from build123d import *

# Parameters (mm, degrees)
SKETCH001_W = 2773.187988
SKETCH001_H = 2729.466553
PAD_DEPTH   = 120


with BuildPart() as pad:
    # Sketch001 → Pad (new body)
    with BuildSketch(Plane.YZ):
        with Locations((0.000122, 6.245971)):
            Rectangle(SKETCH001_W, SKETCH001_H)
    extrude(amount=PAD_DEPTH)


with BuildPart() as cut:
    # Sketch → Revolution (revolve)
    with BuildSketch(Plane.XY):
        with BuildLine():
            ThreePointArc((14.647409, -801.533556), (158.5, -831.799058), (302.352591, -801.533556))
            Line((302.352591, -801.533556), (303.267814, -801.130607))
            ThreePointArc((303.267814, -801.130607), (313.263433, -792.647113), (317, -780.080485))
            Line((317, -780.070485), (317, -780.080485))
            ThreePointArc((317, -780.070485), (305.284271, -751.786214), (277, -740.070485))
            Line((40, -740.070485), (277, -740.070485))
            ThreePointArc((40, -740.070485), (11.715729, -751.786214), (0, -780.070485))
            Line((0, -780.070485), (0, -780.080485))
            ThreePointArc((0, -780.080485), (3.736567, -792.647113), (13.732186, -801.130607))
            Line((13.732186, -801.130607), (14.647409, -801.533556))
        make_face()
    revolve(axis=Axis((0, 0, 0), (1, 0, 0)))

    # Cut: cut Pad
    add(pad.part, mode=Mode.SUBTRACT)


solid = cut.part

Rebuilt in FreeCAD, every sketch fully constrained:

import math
import FreeCAD as App
import Part
import Sketcher

V = App.Vector


def add_polygon(sketch, points):
    """Adds a closed chain of lines whose ends are joined by coincident constraints."""
    first, n = sketch.GeometryCount, len(points)
    for a, b in zip(points, points[1:] + points[:1]):
        sketch.addGeometry(Part.LineSegment(App.Vector(*a, 0), App.Vector(*b, 0)), False)
    for i in range(n):
        sketch.addConstraint(Sketcher.Constraint("Coincident", first + i, 2, first + (i + 1) % n, 1))

doc = App.newDocument("Part")
body = doc.addObject("PartDesign::Body", "Body")

sketch1 = doc.addObject("Sketcher::SketchObject", "Sketch")
body.addObject(sketch1)
sketch1.AttachmentSupport = (doc.YZ_Plane, [""])
sketch1.MapMode = "FlatFace"
add_polygon(sketch1, [(-1387, 1371), (-1387, -1358), (1387, -1358), (1387, 1371)])
sketch1.addConstraint([
    Sketcher.Constraint("Vertical", 0),
    Sketcher.Constraint("Horizontal", 1),
    Sketcher.Constraint("Vertical", 2),
    Sketcher.Constraint("Horizontal", 3),
    Sketcher.Constraint("DistanceX", 1, 1, 1, 2, 2773.187988),
    Sketcher.Constraint("DistanceY", 0, 2, 0, 1, 2729.466553),
    Sketcher.Constraint("DistanceX", 0, 2, -1, 1, 1386.593872),
    Sketcher.Constraint("DistanceY", 0, 2, -1, 1, 1358.487306),
])
pad1 = doc.addObject("PartDesign::Pad", "Pad")
body.addObject(pad1)
pad1.Profile = sketch1
pad1.Length = 120
body2 = doc.addObject("PartDesign::Body", "Body001")

sketch2 = doc.addObject("Sketcher::SketchObject", "Sketch001")
body2.addObject(sketch2)
sketch2.AttachmentSupport = (doc.getObject("XY_Plane001"), [""])
sketch2.MapMode = "FlatFace"
sketch2.addGeometry([
    Part.ArcOfCircle(Part.Circle(V(158.5, -474.799, 0), V(0, 0, 1), 357), math.radians(-114), math.radians(-66)),
    Part.LineSegment(V(302.353, -801.534, 0), V(303.268, -801.131, 0)),
    Part.ArcOfCircle(Part.Circle(V(294, -780.08, 0), V(0, 0, 1), 23), math.radians(-66), math.radians(0)),
    Part.LineSegment(V(317, -780.08, 0), V(317, -780.07, 0)),
    Part.ArcOfCircle(Part.Circle(V(277, -780.07, 0), V(0, 0, 1), 40), math.radians(0), math.radians(90)),
    Part.LineSegment(V(277, -740.07, 0), V(40, -740.07, 0)),
    Part.ArcOfCircle(Part.Circle(V(40, -780.07, 0), V(0, 0, 1), 40), math.radians(90), math.radians(180)),
    Part.LineSegment(V(0, -780.07, 0), V(0, -780.08, 0)),
    Part.ArcOfCircle(Part.Circle(V(23, -780.08, 0), V(0, 0, 1), 23), math.radians(-180), math.radians(-114)),
    Part.LineSegment(V(13.732, -801.131, 0), V(14.647, -801.534, 0)),
], False)
sketch2.addConstraint([
    Sketcher.Constraint("Tangent", 0, 2, 1, 1),
    Sketcher.Constraint("Tangent", 1, 2, 2, 1),
    Sketcher.Constraint("Tangent", 2, 2, 3, 1),
    Sketcher.Constraint("Coincident", 3, 2, 4, 1),
    Sketcher.Constraint("Tangent", 4, 2, 5, 1),
    Sketcher.Constraint("Tangent", 5, 2, 6, 1),
    Sketcher.Constraint("Tangent", 6, 2, 7, 1),
    Sketcher.Constraint("Coincident", 7, 2, 8, 1),
    Sketcher.Constraint("Tangent", 8, 2, 9, 1),
    Sketcher.Constraint("Tangent", 9, 2, 0, 1),
    Sketcher.Constraint("Horizontal", 5),
    Sketcher.Constraint("Equal", 4, 6),
    Sketcher.Constraint("Equal", 2, 8),
    Sketcher.Constraint("PointOnObject", 6, 2, -2),
    Sketcher.Constraint("Horizontal", 2, 3, 8, 3),
    Sketcher.Constraint("Horizontal", 8, 3, 2, 2),
    Sketcher.Constraint("Horizontal", 6, 3, 3, 2),
    Sketcher.Constraint("Horizontal", 3, 2, 6, 2),
    Sketcher.Constraint("Horizontal", 2, 2, 7, 2),
    Sketcher.Constraint("Horizontal", 1, 2, 8, 2),
    Sketcher.Constraint("Radius", 0, 357.000002),
    Sketcher.Constraint("Radius", 2, 23.000002),
    Sketcher.Constraint("Radius", 4, 40.000001),
    Sketcher.Constraint("DistanceX", 5, 2, 5, 1, 237.0),
    Sketcher.Constraint("Distance", 1, 1.000001),
    Sketcher.Constraint("DistanceY", 3, 1, 3, 2, 0.01),
    Sketcher.Constraint("DistanceY", 0, 3, -1, 1, 474.799056),
])
revolution = doc.addObject("PartDesign::Revolution", "Revolution")
body2.addObject(revolution)
revolution.Profile = sketch2
revolution.ReferenceAxis = (sketch2, ["H_Axis"])
revolution.Angle = 360
doc.recompute()

boolean = doc.addObject("PartDesign::Boolean", "Boolean")
body2.addObject(boolean)
boolean.Type = "Cut"
boolean.addObjects([body])

doc.recompute()
